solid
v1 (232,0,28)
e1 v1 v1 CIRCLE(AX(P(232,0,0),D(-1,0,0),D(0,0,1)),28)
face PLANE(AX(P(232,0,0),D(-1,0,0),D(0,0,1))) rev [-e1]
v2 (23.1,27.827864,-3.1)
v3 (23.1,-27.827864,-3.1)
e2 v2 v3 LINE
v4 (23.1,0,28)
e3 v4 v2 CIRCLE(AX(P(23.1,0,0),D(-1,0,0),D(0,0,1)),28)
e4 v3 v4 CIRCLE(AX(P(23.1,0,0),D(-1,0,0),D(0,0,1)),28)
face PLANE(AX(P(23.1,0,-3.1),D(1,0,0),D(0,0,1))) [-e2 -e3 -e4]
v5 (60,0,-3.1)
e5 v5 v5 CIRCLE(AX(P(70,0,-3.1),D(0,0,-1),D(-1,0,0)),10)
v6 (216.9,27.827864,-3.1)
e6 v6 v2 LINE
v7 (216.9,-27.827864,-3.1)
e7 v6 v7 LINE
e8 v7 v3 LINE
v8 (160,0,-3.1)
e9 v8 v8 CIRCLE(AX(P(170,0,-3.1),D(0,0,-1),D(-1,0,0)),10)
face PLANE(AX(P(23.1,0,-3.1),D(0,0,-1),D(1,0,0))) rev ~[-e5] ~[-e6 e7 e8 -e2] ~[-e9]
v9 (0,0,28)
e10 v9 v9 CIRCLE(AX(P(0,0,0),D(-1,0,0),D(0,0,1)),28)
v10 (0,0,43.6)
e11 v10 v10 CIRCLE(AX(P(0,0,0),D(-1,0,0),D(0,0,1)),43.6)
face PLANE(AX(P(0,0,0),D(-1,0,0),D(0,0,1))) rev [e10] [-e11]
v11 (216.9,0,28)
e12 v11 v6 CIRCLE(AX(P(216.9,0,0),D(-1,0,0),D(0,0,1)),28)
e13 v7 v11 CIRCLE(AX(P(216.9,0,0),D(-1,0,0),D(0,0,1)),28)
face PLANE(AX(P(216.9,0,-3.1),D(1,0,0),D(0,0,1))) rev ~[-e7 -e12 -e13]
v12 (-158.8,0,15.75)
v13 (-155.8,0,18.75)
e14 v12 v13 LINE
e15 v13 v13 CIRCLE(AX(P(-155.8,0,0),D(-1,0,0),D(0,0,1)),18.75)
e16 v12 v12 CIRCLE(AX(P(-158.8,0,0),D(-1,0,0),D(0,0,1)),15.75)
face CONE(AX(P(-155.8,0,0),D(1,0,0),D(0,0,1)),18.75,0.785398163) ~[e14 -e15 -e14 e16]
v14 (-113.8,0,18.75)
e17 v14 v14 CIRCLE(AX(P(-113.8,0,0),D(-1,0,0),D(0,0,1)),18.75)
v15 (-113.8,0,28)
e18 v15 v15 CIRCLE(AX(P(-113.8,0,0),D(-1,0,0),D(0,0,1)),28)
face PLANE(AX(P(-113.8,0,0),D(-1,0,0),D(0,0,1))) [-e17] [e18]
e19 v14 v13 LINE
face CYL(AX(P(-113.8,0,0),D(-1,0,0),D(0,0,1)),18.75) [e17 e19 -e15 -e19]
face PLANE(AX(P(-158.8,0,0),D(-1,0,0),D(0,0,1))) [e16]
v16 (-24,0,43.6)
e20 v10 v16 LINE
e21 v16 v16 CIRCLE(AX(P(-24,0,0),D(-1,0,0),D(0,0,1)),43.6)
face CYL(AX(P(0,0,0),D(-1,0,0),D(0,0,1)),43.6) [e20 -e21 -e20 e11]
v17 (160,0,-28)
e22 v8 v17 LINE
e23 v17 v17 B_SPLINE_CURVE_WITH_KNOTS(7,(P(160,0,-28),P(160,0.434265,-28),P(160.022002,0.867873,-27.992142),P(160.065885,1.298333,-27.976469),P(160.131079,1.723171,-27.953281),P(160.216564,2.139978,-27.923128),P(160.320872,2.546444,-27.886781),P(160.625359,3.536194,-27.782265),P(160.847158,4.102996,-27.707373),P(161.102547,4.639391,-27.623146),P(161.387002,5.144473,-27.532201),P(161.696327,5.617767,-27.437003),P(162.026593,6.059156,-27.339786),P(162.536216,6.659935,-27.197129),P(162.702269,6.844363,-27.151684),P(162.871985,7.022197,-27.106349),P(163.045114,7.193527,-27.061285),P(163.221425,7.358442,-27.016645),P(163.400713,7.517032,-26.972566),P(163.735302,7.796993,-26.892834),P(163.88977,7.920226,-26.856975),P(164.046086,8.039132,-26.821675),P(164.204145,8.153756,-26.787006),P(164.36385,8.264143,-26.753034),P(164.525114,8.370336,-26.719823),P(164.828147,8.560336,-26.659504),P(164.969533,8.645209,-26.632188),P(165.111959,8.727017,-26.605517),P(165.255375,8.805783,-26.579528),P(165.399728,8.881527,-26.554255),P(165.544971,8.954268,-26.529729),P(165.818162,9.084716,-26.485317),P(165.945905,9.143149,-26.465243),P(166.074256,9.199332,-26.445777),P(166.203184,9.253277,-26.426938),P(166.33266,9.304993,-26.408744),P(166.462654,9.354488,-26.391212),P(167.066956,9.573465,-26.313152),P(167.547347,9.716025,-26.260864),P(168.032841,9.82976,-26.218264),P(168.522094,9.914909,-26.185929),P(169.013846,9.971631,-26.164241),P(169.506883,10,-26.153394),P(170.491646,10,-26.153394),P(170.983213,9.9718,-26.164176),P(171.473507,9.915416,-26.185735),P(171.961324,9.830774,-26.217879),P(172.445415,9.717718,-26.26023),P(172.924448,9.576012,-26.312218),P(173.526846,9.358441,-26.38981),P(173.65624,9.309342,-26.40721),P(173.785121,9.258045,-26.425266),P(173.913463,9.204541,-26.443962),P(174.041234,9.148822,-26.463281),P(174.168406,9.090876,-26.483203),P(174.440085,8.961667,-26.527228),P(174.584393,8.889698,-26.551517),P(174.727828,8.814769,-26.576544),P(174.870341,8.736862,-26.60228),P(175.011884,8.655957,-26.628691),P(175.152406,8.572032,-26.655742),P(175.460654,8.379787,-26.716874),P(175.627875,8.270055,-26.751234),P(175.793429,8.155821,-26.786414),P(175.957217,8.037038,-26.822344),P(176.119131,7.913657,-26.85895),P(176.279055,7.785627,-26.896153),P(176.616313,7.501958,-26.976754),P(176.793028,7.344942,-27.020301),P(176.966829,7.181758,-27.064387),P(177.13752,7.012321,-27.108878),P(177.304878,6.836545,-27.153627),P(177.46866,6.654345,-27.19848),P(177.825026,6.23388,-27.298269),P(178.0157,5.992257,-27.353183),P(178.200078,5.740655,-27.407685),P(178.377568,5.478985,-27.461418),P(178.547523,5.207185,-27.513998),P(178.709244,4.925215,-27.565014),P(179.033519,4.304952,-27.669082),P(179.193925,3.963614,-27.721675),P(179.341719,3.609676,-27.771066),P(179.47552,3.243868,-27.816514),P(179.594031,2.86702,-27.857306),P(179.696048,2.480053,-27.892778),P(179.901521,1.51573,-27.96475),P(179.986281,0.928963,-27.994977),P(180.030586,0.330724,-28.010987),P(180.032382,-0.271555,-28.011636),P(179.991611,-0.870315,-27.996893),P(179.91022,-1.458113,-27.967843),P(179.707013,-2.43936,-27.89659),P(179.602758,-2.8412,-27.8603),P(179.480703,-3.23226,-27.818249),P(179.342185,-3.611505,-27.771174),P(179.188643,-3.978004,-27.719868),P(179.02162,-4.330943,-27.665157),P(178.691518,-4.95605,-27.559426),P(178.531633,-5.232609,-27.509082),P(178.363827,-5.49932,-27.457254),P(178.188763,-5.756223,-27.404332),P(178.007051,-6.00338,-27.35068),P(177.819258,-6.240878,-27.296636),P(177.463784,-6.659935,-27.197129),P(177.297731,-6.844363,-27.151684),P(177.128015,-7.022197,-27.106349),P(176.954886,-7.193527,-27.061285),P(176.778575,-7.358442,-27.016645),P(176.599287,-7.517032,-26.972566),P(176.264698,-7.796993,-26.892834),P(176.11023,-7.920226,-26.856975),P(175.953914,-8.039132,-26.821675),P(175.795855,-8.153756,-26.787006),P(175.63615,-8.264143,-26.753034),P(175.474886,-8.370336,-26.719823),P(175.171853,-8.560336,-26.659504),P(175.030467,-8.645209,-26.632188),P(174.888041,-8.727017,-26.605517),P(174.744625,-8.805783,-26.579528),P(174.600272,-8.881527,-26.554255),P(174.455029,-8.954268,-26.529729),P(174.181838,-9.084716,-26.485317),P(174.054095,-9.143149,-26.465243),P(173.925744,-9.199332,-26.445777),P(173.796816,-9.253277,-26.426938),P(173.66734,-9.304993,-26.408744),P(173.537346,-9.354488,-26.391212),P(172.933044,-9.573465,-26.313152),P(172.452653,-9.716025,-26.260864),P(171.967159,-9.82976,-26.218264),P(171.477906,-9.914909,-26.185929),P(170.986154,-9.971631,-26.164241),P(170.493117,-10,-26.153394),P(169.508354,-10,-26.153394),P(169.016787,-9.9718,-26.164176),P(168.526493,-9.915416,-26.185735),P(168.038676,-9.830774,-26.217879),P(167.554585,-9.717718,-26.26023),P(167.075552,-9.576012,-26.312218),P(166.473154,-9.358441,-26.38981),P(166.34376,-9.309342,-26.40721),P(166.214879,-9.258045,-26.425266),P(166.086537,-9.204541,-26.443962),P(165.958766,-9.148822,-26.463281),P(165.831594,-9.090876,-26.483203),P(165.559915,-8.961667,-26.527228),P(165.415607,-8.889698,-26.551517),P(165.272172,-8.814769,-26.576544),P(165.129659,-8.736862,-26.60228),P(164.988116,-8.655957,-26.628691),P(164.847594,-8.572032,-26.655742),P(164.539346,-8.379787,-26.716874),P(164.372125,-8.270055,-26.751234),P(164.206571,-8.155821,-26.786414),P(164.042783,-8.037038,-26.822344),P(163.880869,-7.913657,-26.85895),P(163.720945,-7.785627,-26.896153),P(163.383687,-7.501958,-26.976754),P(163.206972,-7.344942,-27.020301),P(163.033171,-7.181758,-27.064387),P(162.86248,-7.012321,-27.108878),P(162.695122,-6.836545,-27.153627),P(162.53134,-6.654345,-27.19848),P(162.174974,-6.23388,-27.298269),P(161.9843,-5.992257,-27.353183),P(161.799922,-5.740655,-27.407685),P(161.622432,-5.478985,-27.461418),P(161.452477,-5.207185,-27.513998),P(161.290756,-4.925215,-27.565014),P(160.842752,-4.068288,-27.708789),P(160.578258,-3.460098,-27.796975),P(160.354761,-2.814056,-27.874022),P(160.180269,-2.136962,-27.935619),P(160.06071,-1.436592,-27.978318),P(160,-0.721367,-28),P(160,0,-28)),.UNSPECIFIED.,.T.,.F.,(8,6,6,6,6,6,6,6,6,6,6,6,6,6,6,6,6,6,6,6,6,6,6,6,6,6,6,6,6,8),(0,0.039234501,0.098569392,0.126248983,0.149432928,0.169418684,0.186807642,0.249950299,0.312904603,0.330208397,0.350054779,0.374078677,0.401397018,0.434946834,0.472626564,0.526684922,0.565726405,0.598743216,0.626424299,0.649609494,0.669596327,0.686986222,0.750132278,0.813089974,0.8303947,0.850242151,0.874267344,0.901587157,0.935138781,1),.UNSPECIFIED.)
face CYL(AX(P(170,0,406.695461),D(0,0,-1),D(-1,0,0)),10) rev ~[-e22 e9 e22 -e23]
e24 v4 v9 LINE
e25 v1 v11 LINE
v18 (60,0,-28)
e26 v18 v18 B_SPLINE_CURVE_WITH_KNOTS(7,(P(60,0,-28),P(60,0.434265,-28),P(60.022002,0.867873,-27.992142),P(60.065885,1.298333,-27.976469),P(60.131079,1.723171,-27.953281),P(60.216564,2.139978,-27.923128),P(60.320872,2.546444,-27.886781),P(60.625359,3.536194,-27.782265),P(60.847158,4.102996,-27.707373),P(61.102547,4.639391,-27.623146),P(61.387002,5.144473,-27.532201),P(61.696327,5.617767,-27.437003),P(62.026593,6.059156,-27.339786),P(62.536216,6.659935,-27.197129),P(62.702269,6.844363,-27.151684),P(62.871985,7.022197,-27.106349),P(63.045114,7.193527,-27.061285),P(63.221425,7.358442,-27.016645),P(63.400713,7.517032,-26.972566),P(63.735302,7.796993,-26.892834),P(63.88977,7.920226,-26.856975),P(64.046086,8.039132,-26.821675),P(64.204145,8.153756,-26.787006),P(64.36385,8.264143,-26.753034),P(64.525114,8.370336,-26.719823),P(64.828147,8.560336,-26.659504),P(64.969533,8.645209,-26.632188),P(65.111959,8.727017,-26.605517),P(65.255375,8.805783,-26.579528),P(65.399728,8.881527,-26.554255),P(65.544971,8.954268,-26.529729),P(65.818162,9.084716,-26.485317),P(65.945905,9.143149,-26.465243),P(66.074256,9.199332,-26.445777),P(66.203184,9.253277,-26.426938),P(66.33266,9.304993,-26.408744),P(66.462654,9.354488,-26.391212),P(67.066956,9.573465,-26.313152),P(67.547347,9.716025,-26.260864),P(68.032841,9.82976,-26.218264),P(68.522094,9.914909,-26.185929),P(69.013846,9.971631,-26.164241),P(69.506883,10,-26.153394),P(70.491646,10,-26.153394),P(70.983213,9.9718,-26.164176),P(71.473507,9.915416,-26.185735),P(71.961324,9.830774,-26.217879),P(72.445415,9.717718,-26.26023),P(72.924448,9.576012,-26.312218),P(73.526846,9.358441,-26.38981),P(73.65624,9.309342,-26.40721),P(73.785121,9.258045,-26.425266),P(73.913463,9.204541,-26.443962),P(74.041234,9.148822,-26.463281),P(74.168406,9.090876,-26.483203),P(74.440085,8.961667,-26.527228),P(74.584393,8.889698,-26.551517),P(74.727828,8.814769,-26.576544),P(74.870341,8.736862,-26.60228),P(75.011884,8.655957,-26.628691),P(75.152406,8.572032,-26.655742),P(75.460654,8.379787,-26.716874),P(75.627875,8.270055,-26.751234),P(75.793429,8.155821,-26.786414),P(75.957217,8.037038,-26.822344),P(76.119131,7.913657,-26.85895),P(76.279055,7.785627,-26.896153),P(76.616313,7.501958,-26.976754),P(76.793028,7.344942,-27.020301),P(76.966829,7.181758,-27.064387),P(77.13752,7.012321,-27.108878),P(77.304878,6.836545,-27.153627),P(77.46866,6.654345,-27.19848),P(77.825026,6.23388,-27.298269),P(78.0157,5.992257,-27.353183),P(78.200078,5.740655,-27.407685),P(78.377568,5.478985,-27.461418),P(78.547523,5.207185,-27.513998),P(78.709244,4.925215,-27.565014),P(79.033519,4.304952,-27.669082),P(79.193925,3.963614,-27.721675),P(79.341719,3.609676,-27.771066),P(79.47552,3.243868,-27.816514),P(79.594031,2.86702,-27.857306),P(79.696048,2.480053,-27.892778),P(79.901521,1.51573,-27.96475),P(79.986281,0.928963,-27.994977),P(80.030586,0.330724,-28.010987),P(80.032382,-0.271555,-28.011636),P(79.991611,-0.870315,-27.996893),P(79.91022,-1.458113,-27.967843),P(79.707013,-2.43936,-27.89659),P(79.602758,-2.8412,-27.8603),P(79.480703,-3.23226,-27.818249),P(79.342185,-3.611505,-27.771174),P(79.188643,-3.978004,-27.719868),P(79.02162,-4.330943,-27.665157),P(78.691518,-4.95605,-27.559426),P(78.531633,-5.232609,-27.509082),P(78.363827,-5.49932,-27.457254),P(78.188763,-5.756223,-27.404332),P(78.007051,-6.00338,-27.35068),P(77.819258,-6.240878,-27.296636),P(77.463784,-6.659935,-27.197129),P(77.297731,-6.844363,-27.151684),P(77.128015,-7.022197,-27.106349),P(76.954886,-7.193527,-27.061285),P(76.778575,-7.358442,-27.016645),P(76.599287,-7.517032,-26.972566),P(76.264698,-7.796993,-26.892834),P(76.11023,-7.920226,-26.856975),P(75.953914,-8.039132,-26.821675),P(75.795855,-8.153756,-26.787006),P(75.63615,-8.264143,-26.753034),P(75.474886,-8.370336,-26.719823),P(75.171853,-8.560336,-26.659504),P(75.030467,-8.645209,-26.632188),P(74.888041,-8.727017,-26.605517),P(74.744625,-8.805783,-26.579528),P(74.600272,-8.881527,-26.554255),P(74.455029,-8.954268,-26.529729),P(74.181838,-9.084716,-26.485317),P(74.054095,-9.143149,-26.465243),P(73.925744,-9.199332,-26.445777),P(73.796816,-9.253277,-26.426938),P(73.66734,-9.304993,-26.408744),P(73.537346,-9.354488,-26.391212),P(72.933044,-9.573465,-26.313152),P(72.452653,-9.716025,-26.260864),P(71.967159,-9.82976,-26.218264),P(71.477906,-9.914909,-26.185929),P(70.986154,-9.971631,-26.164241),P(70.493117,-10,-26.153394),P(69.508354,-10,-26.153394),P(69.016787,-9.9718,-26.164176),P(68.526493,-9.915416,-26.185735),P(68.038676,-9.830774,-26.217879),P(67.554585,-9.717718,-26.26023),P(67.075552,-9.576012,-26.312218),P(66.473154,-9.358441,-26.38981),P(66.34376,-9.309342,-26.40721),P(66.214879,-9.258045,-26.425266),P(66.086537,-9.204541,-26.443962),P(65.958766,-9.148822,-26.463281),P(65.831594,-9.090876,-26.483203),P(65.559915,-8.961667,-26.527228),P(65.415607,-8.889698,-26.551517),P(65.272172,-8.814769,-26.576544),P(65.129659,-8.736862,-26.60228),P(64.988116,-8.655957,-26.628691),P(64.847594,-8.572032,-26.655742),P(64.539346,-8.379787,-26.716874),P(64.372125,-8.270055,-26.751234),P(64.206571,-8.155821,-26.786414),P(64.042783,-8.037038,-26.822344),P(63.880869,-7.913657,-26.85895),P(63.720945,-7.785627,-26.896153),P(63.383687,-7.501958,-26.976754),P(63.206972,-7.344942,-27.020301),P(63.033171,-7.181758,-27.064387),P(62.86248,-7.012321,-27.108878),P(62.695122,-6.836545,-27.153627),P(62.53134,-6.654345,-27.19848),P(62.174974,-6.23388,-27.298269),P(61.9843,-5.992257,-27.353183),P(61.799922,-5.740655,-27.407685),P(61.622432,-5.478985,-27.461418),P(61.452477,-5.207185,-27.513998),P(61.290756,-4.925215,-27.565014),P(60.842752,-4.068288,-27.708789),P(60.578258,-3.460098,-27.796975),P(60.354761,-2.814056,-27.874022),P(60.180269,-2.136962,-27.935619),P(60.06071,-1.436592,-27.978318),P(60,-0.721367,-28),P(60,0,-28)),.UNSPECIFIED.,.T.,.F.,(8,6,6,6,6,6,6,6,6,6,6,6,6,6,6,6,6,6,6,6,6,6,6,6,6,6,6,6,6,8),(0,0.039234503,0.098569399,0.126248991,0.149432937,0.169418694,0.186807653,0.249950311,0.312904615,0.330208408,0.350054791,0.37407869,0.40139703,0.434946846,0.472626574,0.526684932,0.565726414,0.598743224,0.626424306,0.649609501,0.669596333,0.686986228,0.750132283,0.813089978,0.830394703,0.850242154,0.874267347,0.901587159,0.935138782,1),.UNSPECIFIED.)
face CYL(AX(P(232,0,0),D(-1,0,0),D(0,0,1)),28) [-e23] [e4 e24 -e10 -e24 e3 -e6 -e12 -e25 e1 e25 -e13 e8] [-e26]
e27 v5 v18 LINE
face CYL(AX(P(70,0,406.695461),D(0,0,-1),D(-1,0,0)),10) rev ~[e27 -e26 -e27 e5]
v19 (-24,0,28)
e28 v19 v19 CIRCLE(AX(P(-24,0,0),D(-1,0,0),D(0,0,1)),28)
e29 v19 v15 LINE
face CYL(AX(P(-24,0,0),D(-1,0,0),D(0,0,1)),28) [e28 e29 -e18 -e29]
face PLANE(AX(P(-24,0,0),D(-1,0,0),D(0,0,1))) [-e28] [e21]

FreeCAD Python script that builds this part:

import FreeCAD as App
import Part
import Sketcher
from FreeCAD import Vector
Q = App.Units.Quantity


def edges_at(feature, points):
    """Names of the edges that pass closest to the given points."""
    edges = feature.Shape.Edges
    near = lambda p: min(range(len(edges)), key=lambda i: edges[i].distToShape(Part.Vertex(*p))[0])
    return sorted({f"Edge{near(p) + 1}" for p in points})


def add_polygon(sketch, points):
    """Adds a closed chain of lines whose ends are joined by coincident constraints."""
    first, n = sketch.GeometryCount, len(points)
    for a, b in zip(points, points[1:] + points[:1]):
        sketch.addGeometry(Part.LineSegment(App.Vector(*a, 0), App.Vector(*b, 0)), False)
    for i in range(n):
        sketch.addConstraint(Sketcher.Constraint("Coincident", first + i, 2, first + (i + 1) % n, 1))

doc = App.newDocument("Part")
body = doc.addObject("PartDesign::Body", "Body")

sketch1 = doc.addObject("Sketcher::SketchObject", "Sketch")
body.addObject(sketch1)
sketch1.AttachmentSupport = (doc.XZ_Plane, [""])
sketch1.MapMode = "FlatFace"
add_polygon(sketch1, [(-159, 19), (-159, 0), (232, 0), (232, 28), (0, 28), (0, 44), (-24, 44), (-24, 28), (-114, 28), (-114, 19)])
sketch1.addConstraint(Sketcher.Constraint("Vertical", 0))
sketch1.addConstraint(Sketcher.Constraint("Horizontal", 1))
sketch1.addConstraint(Sketcher.Constraint("Vertical", 2))
sketch1.addConstraint(Sketcher.Constraint("Horizontal", 3))
sketch1.addConstraint(Sketcher.Constraint("Vertical", 4))
sketch1.addConstraint(Sketcher.Constraint("Horizontal", 5))
sketch1.addConstraint(Sketcher.Constraint("Vertical", 6))
sketch1.addConstraint(Sketcher.Constraint("Horizontal", 7))
sketch1.addConstraint(Sketcher.Constraint("Vertical", 8))
sketch1.addConstraint(Sketcher.Constraint("Horizontal", 9))
sketch1.addConstraint(Sketcher.Constraint("PointOnObject", 0, 2, -1))
sketch1.addConstraint(Sketcher.Constraint("PointOnObject", 3, 2, -2))
sketch1.addConstraint(Sketcher.Constraint("Horizontal", 3, 2, 6, 2))
sketch1.addConstraint(Sketcher.Constraint("DistanceX", 3, 2, 3, 1, Q("232 mm")))
sketch1.addConstraint(Sketcher.Constraint("DistanceX", 5, 2, 5, 1, Q("24 mm")))
sketch1.addConstraint(Sketcher.Constraint("DistanceX", 9, 2, 9, 1, Q("45 mm")))
sketch1.addConstraint(Sketcher.Constraint("DistanceY", 2, 1, 2, 2, Q("28 mm")))
sketch1.addConstraint(Sketcher.Constraint("DistanceX", 1, 1, 1, 2, Q("390.8 mm")))
sketch1.addConstraint(Sketcher.Constraint("DistanceY", 4, 1, 4, 2, Q("15.6 mm")))
sketch1.addConstraint(Sketcher.Constraint("DistanceY", 0, 2, 0, 1, Q("18.75 mm")))
revolution = doc.addObject("PartDesign::Revolution", "Revolution")
body.addObject(revolution)
revolution.Profile = sketch1
revolution.ReferenceAxis = (sketch1, ["H_Axis"])
revolution.Angle = 360

sketch2 = doc.addObject("Sketcher::SketchObject", "Sketch001")
body.addObject(sketch2)
sketch2.AttachmentSupport = (doc.XZ_Plane, [""])
sketch2.MapMode = "FlatFace"
add_polygon(sketch2, [(23, 41), (23, -3), (217, -3), (217, 41)])
sketch2.addConstraint(Sketcher.Constraint("Vertical", 0))
sketch2.addConstraint(Sketcher.Constraint("Horizontal", 1))
sketch2.addConstraint(Sketcher.Constraint("Vertical", 2))
sketch2.addConstraint(Sketcher.Constraint("Horizontal", 3))
sketch2.addConstraint(Sketcher.Constraint("DistanceX", 1, 1, 1, 2, Q("193.8 mm")))
sketch2.addConstraint(Sketcher.Constraint("DistanceX", -1, 1, 0, 2, Q("23.1 mm")))
sketch2.addConstraint(Sketcher.Constraint("DistanceY", 0, 2, -1, 1, Q("3.1 mm")))
sketch2.addConstraint(Sketcher.Constraint("DistanceY", 0, 2, 0, 1, Q("44.175383 mm")))
pocket1 = doc.addObject("PartDesign::Pocket", "Pocket")
body.addObject(pocket1)
pocket1.Profile = sketch2
pocket1.Type = "ThroughAll"
pocket1.Midplane = True

sketch3 = doc.addObject("Sketcher::SketchObject", "Sketch002")
body.addObject(sketch3)
sketch3.AttachmentSupport = (doc.XY_Plane, [""])
sketch3.MapMode = "FlatFace"
sketch3.AttachmentOffset = App.Placement(Vector(0, 0, -3.1), App.Rotation())
sketch3.addGeometry(Part.Circle(Vector(70, 0, 0), Vector(0, 0, 1), 10), False)
sketch3.addGeometry(Part.Circle(Vector(170, 0, 0), Vector(0, 0, 1), 10), False)
sketch3.addConstraint(Sketcher.Constraint("Equal", 0, 1))
sketch3.addConstraint(Sketcher.Constraint("PointOnObject", 0, 3, -1))
sketch3.addConstraint(Sketcher.Constraint("PointOnObject", 1, 3, -1))
sketch3.addConstraint(Sketcher.Constraint("Diameter", 0, Q("20 mm")))
sketch3.addConstraint(Sketcher.Constraint("DistanceX", -1, 1, 0, 3, Q("70 mm")))
sketch3.addConstraint(Sketcher.Constraint("DistanceX", -1, 1, 1, 3, Q("170 mm")))
doc.recompute()
hole = doc.addObject("PartDesign::Hole", "Hole")
body.addObject(hole)
hole.Profile = sketch3
hole.ThreadType = "None"
hole.Diameter = 20
hole.DepthType = "ThroughAll"
doc.recompute()

chamfer = doc.addObject("PartDesign::Chamfer", "Chamfer")
body.addObject(chamfer)
chamfer.Base = (hole, edges_at(hole, [(-158.8, 0, -18.75)]))
chamfer.Size = 3

doc.recompute()
